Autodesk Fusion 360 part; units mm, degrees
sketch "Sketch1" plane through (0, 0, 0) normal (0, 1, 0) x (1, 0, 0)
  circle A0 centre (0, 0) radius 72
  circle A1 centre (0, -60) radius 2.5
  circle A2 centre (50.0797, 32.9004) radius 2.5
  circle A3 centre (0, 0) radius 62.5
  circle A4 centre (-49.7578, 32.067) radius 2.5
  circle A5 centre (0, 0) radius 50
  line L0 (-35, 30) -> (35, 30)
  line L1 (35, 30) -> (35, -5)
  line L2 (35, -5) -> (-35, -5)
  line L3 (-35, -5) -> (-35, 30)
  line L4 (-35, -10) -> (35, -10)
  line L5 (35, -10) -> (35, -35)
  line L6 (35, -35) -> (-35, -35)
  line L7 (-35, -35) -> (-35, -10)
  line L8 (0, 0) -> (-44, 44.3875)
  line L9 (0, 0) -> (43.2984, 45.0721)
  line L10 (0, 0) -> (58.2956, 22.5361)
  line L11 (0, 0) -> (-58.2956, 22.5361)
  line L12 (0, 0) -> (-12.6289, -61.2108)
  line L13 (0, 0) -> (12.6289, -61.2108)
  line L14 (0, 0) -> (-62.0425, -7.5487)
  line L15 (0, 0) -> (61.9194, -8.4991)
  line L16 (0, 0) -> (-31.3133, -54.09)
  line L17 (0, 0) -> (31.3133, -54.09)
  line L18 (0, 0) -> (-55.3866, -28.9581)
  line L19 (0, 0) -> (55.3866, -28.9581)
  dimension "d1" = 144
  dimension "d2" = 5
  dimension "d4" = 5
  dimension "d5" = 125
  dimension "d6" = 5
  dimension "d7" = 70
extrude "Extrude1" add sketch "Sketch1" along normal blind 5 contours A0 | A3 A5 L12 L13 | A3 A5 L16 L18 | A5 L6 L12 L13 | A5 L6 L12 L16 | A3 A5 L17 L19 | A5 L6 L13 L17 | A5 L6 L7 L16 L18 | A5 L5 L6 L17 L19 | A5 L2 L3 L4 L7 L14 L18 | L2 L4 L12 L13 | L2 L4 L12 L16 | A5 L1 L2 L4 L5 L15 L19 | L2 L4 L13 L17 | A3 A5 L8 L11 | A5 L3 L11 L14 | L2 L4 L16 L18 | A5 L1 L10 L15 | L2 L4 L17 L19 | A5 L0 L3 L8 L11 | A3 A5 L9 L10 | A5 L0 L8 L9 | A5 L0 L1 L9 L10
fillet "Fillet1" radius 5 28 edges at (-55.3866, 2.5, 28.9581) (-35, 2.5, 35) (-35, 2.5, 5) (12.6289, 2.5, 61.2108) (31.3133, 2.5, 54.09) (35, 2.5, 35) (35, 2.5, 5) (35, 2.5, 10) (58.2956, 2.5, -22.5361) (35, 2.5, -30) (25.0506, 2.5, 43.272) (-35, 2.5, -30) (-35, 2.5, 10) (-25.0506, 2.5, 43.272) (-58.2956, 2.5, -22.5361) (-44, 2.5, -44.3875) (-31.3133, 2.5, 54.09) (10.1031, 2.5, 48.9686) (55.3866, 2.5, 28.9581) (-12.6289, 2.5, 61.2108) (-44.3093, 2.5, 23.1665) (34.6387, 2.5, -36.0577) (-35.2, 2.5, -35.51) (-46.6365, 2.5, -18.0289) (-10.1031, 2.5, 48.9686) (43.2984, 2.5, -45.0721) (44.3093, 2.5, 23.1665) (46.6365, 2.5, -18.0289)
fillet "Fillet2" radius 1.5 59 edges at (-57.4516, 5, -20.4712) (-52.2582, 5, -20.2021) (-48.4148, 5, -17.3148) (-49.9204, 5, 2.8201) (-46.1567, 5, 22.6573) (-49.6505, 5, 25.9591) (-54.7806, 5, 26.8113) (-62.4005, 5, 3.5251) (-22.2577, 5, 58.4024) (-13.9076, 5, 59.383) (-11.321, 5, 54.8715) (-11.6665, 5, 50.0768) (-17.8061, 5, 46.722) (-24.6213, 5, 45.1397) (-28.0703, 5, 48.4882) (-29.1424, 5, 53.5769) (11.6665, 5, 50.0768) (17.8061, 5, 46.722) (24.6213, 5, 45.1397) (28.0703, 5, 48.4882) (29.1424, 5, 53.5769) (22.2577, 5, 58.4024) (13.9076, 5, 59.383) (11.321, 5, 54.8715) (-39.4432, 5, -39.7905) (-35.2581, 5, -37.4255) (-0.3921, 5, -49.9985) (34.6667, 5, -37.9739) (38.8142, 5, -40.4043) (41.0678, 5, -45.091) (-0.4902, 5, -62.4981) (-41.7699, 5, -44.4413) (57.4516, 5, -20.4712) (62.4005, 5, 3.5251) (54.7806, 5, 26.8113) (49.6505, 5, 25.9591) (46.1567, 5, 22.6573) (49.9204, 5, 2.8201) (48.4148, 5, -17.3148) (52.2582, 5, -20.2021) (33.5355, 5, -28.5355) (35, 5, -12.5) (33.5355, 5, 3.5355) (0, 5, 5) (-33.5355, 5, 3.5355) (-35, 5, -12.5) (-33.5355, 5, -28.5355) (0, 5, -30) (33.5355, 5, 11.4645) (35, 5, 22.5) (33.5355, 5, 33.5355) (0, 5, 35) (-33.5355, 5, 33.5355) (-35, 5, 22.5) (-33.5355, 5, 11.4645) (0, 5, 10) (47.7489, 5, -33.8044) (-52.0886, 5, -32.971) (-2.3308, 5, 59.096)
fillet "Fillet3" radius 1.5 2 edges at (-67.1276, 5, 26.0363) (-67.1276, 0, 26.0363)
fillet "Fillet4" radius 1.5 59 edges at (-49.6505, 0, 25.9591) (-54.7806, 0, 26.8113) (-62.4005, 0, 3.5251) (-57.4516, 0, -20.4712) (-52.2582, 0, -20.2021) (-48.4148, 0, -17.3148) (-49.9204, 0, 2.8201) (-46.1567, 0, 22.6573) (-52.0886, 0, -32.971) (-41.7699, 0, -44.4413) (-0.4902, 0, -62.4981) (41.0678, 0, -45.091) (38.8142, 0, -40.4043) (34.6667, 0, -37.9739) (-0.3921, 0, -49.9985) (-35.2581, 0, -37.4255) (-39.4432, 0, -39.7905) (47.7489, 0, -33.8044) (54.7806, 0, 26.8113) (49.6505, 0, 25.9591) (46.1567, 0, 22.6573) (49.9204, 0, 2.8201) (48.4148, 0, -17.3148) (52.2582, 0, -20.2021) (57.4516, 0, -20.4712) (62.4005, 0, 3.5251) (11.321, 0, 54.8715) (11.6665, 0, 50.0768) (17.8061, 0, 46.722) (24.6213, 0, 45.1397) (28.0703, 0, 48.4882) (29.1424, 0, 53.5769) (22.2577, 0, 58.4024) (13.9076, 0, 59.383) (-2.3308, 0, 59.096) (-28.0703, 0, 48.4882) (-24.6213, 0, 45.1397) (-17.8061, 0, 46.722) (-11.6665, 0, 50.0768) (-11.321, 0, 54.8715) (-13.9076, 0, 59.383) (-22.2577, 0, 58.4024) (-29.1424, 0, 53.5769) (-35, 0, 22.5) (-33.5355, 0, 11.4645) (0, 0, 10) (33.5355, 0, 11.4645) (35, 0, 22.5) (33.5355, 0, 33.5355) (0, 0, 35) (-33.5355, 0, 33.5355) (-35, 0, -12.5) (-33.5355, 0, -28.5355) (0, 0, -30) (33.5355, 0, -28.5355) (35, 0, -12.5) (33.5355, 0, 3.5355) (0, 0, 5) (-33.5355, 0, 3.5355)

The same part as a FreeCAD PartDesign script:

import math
import FreeCAD as App
import Part
import Sketcher

V = App.Vector
Q = App.Units.Quantity


def edges_at(feature, points):
    """Names of the edges that pass closest to the given points."""
    edges = feature.Shape.Edges
    near = lambda p: min(range(len(edges)), key=lambda i: edges[i].distToShape(Part.Vertex(*p))[0])
    return sorted({f"Edge{near(p) + 1}" for p in points})


def add_polygon(sketch, points):
    """Adds a closed chain of lines whose ends are joined by coincident constraints."""
    first, n = sketch.GeometryCount, len(points)
    for a, b in zip(points, points[1:] + points[:1]):
        sketch.addGeometry(Part.LineSegment(App.Vector(*a, 0), App.Vector(*b, 0)), False)
    for i in range(n):
        sketch.addConstraint(Sketcher.Constraint("Coincident", first + i, 2, first + (i + 1) % n, 1))

doc = App.newDocument("Part")
params = doc.addObject("Spreadsheet::Sheet", "Params")
for row, (alias, value) in enumerate([
    ("sketch1_diameter", "144 mm"),
    ("sketch1_diameter2", "5 mm"),
    ("sketch1_radius", "62.5 mm"),
    ("sketch1_width", "70 mm"),
    ("sketch1_radius2", "50 mm"),
    ("pad1_length", "5 mm"),
    ("fillet_radius", "5 mm"),
    ("fillet2_radius", "1.5 mm"),
    ("fillet3_radius", "1.5 mm"),
    ("fillet4_radius", "1.5 mm"),
], start=1):
    params.set(f"A{row}", alias)
    params.set(f"B{row}", "=" + value)
    params.setAlias(f"B{row}", alias)

body = doc.addObject("PartDesign::Body", "Body")

# Sketch on XZ plane
sketch1 = doc.addObject("Sketcher::SketchObject", "Sketch")
body.addObject(sketch1)
sketch1.AttachmentSupport = (doc.XZ_Plane, [""])
sketch1.MapMode = "FlatFace"
sketch1.addGeometry(Part.Circle(V(0, 0, 0), V(0, 0, 1), 72), False)  # 0
sketch1.addGeometry(Part.ArcOfCircle(Part.Circle(V(0, 0, 0), V(0, 0, 1), 62.5), math.radians(59.93), math.radians(78.34)), False)  # 1
sketch1.addGeometry(Part.LineSegment(V(12.6, 61.2, 0), V(10.1, 49, 0)), False)  # 2
sketch1.addGeometry(Part.ArcOfCircle(Part.Circle(V(0, 0, 0), V(0, 0, 1), 50), math.radians(59.93), math.radians(78.34)), False)  # 3
sketch1.addGeometry(Part.LineSegment(V(25.1, 43.3, 0), V(31.3, 54.1, 0)), False)  # 4
sketch1.addGeometry(Part.LineSegment(V(55.4, 29, 0), V(44.3, 23.2, 0)), False)  # 5
sketch1.addGeometry(Part.ArcOfCircle(Part.Circle(V(0, 0, 0), V(0, 0, 1), 50), math.radians(-21), math.radians(28)), False)  # 6
sketch1.addGeometry(Part.LineSegment(V(46.6, -18, 0), V(58.3, -22.5, 0)), False)  # 7
sketch1.addGeometry(Part.ArcOfCircle(Part.Circle(V(0, 0, 0), V(0, 0, 1), 62.5), math.radians(-21), math.radians(28)), False)  # 8
sketch1.addGeometry(Part.ArcOfCircle(Part.Circle(V(0, 0, 0), V(0, 0, 1), 62.5), math.radians(-135), math.radians(-46)), False)  # 9
sketch1.addGeometry(Part.LineSegment(V(43.3, -45.1, 0), V(34.6, -36.1, 0)), False)  # 10
sketch1.addGeometry(Part.ArcOfCircle(Part.Circle(V(0, 0, 0), V(0, 0, 1), 50), math.radians(-135), math.radians(-46)), False)  # 11
sketch1.addGeometry(Part.LineSegment(V(-35.2, -35.5, 0), V(-44, -44.4, 0)), False)  # 12
sketch1.addGeometry(Part.LineSegment(V(-58.3, -22.5, 0), V(-46.6, -18, 0)), False)  # 13
sketch1.addGeometry(Part.ArcOfCircle(Part.Circle(V(0, 0, 0), V(0, 0, 1), 50), math.radians(152), math.radians(201)), False)  # 14
sketch1.addGeometry(Part.LineSegment(V(-44.3, 23.2, 0), V(-55.4, 29, 0)), False)  # 15
sketch1.addGeometry(Part.ArcOfCircle(Part.Circle(V(0, 0, 0), V(0, 0, 1), 62.5), math.radians(152), math.radians(201)), False)  # 16
sketch1.addGeometry(Part.ArcOfCircle(Part.Circle(V(0, 0, 0), V(0, 0, 1), 62.5), math.radians(101.66), math.radians(120.07)), False)  # 17
sketch1.addGeometry(Part.LineSegment(V(-31.3, 54.1, 0), V(-25.1, 43.3, 0)), False)  # 18
sketch1.addGeometry(Part.ArcOfCircle(Part.Circle(V(0, 0, 0), V(0, 0, 1), 50), math.radians(101.66), math.radians(120.07)), False)  # 19
sketch1.addGeometry(Part.LineSegment(V(-10.1, 49, 0), V(-12.6, 61.2, 0)), False)  # 20
sketch1.addGeometry(Part.Circle(V(0, 60, 0), V(0, 0, 1), 2.5), False)  # 21
sketch1.addGeometry(Part.Circle(V(50.1, -32.9, 0), V(0, 0, 1), 2.5), False)  # 22
sketch1.addGeometry(Part.Circle(V(-49.8, -32.1, 0), V(0, 0, 1), 2.5), False)  # 23
add_polygon(sketch1, [(-35, 35), (-35, 10), (35, 10), (35, 35)])  # lines 24-27
add_polygon(sketch1, [(35, -30), (35, 5), (-35, 5), (-35, -30)])  # lines 28-31
sketch1.addConstraint([
    Sketcher.Constraint("Coincident", 1, 2, 2, 1),
    Sketcher.Constraint("Coincident", 2, 2, 3, 2),
    Sketcher.Constraint("Coincident", 3, 1, 4, 1),
    Sketcher.Constraint("Coincident", 4, 2, 1, 1),
    Sketcher.Constraint("Coincident", 5, 2, 6, 2),
    Sketcher.Constraint("Coincident", 6, 1, 7, 1),
    Sketcher.Constraint("Coincident", 7, 2, 8, 1),
    Sketcher.Constraint("Coincident", 8, 2, 5, 1),
    Sketcher.Constraint("Coincident", 9, 2, 10, 1),
    Sketcher.Constraint("Coincident", 10, 2, 11, 2),
    Sketcher.Constraint("Coincident", 11, 1, 12, 1),
    Sketcher.Constraint("Coincident", 12, 2, 9, 1),
    Sketcher.Constraint("Coincident", 13, 2, 14, 2),
    Sketcher.Constraint("Coincident", 14, 1, 15, 1),
    Sketcher.Constraint("Coincident", 15, 2, 16, 1),
    Sketcher.Constraint("Coincident", 16, 2, 13, 1),
    Sketcher.Constraint("Coincident", 17, 2, 18, 1),
    Sketcher.Constraint("Coincident", 18, 2, 19, 2),
    Sketcher.Constraint("Coincident", 19, 1, 20, 1),
    Sketcher.Constraint("Coincident", 20, 2, 17, 1),
    Sketcher.Constraint("Vertical", 24),
    Sketcher.Constraint("Horizontal", 25),
    Sketcher.Constraint("Vertical", 26),
    Sketcher.Constraint("Horizontal", 27),
    Sketcher.Constraint("Vertical", 28),
    Sketcher.Constraint("Horizontal", 29),
    Sketcher.Constraint("Vertical", 30),
    Sketcher.Constraint("Horizontal", 31),
    Sketcher.Constraint("Coincident", 0, 3, -1, 1),
    Sketcher.Constraint("Coincident", 1, 3, -1, 1),
    Sketcher.Constraint("Coincident", 3, 3, -1, 1),
    Sketcher.Constraint("Coincident", 6, 3, -1, 1),
    Sketcher.Constraint("Coincident", 8, 3, -1, 1),
    Sketcher.Constraint("Coincident", 9, 3, -1, 1),
    Sketcher.Constraint("Coincident", 11, 3, -1, 1),
    Sketcher.Constraint("Coincident", 14, 3, -1, 1),
    Sketcher.Constraint("Coincident", 16, 3, -1, 1),
    Sketcher.Constraint("Coincident", 17, 3, -1, 1),
    Sketcher.Constraint("Coincident", 19, 3, -1, 1),
    Sketcher.Constraint("Equal", 3, 6),
    Sketcher.Constraint("Equal", 1, 8),
    Sketcher.Constraint("Equal", 8, 9),
    Sketcher.Constraint("Equal", 6, 11),
    Sketcher.Constraint("Equal", 11, 14),
    Sketcher.Constraint("Equal", 9, 16),
    Sketcher.Constraint("Equal", 16, 17),
    Sketcher.Constraint("Equal", 14, 19),
    Sketcher.Constraint("Equal", 21, 22),
    Sketcher.Constraint("Equal", 22, 23),
    Sketcher.Constraint("PointOnObject", 21, 3, -2),
    Sketcher.Constraint("Horizontal", 6, 1, 13, 2),
    Sketcher.Constraint("Horizontal", 5, 2, 14, 1),
    Sketcher.Constraint("Horizontal", 8, 2, 15, 2),
    Sketcher.Constraint("Horizontal", 7, 2, 16, 2),
    Sketcher.Constraint("Horizontal", 4, 2, 17, 2),
    Sketcher.Constraint("Horizontal", 3, 1, 18, 2),
    Sketcher.Constraint("Horizontal", 2, 2, 19, 1),
    Sketcher.Constraint("Horizontal", 1, 2, 20, 2),
    Sketcher.Constraint("Vertical", 26, 2, 28, 2),
    Sketcher.Constraint("Vertical", 27, 2, 29, 2),
    Sketcher.Constraint("Diameter", 0, 144.0),
    Sketcher.Constraint("Diameter", 21, 5.0),
    Sketcher.Constraint("Radius", 1, 62.5),
    Sketcher.Constraint("DistanceX", 25, 1, 25, 2, 70.0),
    Sketcher.Constraint("DistanceY", -1, 1, 28, 2, 5.0),
    Sketcher.Constraint("Radius", 3, 50.0),
    Sketcher.Constraint("DistanceY", 28, 2, 25, 2, 5.0),
    Sketcher.Constraint("DistanceY", 24, 2, 24, 1, 25.0),
    Sketcher.Constraint("DistanceY", 28, 1, 28, 2, 35.0),
    Sketcher.Constraint("DistanceY", -1, 1, 21, 3, 60.0),
    Sketcher.Constraint("DistanceX", 12, 2, -1, 1, 44.0),
    Sketcher.Constraint("DistanceX", 24, 2, -1, 1, 35.0),
    Sketcher.Constraint("DistanceX", 11, 1, -1, 1, 35.2),
    Sketcher.Constraint("Angle", 10, Q("133.8502 deg")),
    Sketcher.Constraint("DistanceY", -1, 1, 4, 2, 54.09),
    Sketcher.Constraint("DistanceY", 23, 3, -1, 1, 32.067),
    Sketcher.Constraint("DistanceX", -1, 1, 1, 2, 12.629),
    Sketcher.Constraint("DistanceX", -1, 1, 2, 2, 10.103),
    Sketcher.Constraint("DistanceY", -1, 1, 3, 1, 43.272),
    Sketcher.Constraint("DistanceY", 7, 2, -1, 1, 22.536),
    Sketcher.Constraint("DistanceY", -1, 1, 8, 2, 28.958),
    Sketcher.Constraint("DistanceX", 4, 2, 5, 2, 12.996),
    Sketcher.Constraint("DistanceX", 22, 3, 7, 2, 8.216),
    Sketcher.Constraint("DistanceY", 6, 1, 8, 2, 46.987),
    Sketcher.Constraint("DistanceY", 9, 2, 7, 2, 22.536),
    Sketcher.Constraint("DistanceY", 22, 3, -1, 1, 32.9004),
    Sketcher.Constraint("DistanceX", 23, 3, -1, 1, 49.7578),
])
sketch1.setExpression("Constraints[68]", "Params.sketch1_diameter")
sketch1.setExpression("Constraints[69]", "Params.sketch1_diameter2")
sketch1.setExpression("Constraints[70]", "Params.sketch1_radius")
sketch1.setExpression("Constraints[71]", "Params.sketch1_width")
sketch1.setExpression("Constraints[73]", "Params.sketch1_radius2")
pad1 = doc.addObject("PartDesign::Pad", "Pad")
body.addObject(pad1)
pad1.Profile = sketch1
pad1.setExpression("Length", "Params.pad1_length")
pad1.Reversed = True
doc.recompute()

fillet = doc.addObject("PartDesign::Fillet", "Fillet")
body.addObject(fillet)
fillet.Base = (pad1, edges_at(pad1, [
    (-55.387, 2.5, 28.958),
    (-35, 2.5, 35),
    (-35, 2.5, 5),
    (12.629, 2.5, 61.211),
    (31.313, 2.5, 54.09),
    (35, 2.5, 35),
    (35, 2.5, 5),
    (35, 2.5, 10),
    (58.296, 2.5, -22.536),
    (35, 2.5, -30),
    (25.051, 2.5, 43.272),
    (-35, 2.5, -30),
    (-35, 2.5, 10),
    (-25.051, 2.5, 43.272),
    (-58.296, 2.5, -22.536),
    (-44, 2.5, -44.388),
    (-31.313, 2.5, 54.09),
    (10.103, 2.5, 48.969),
    (55.387, 2.5, 28.958),
    (-12.629, 2.5, 61.211),
    (-44.309, 2.5, 23.166),
    (34.639, 2.5, -36.058),
    (-35.2, 2.5, -35.51),
    (-46.636, 2.5, -18.029),
    (-10.103, 2.5, 48.969),
    (43.298, 2.5, -45.072),
    (44.309, 2.5, 23.166),
    (46.636, 2.5, -18.029),
]))
fillet.setExpression("Radius", "Params.fillet_radius")
doc.recompute()

fillet2 = doc.addObject("PartDesign::Fillet", "Fillet001")
body.addObject(fillet2)
fillet2.Base = (fillet, edges_at(fillet, [
    (-57.452, 5, -20.471),
    (-52.258, 5, -20.202),
    (-48.415, 5, -17.315),
    (-49.92, 5, 2.82),
    (-46.157, 5, 22.657),
    (-49.651, 5, 25.959),
    (-54.781, 5, 26.811),
    (-62.401, 5, 3.525),
    (-22.258, 5, 58.402),
    (-13.908, 5, 59.383),
    (-11.321, 5, 54.871),
    (-11.666, 5, 50.077),
    (-17.806, 5, 46.722),
    (-24.621, 5, 45.14),
    (-28.07, 5, 48.488),
    (-29.142, 5, 53.577),
    (11.666, 5, 50.077),
    (17.806, 5, 46.722),
    (24.621, 5, 45.14),
    (28.07, 5, 48.488),
    (29.142, 5, 53.577),
    (22.258, 5, 58.402),
    (13.908, 5, 59.383),
    (11.321, 5, 54.871),
    (-39.443, 5, -39.791),
    (-35.258, 5, -37.425),
    (-0.392, 5, -49.998),
    (34.667, 5, -37.974),
    (38.814, 5, -40.404),
    (41.068, 5, -45.091),
    (-0.49, 5, -62.498),
    (-41.77, 5, -44.441),
    (57.452, 5, -20.471),
    (62.401, 5, 3.525),
    (54.781, 5, 26.811),
    (49.651, 5, 25.959),
    (46.157, 5, 22.657),
    (49.92, 5, 2.82),
    (48.415, 5, -17.315),
    (52.258, 5, -20.202),
    (33.535, 5, -28.535),
    (35, 5, -12.5),
    (33.535, 5, 3.535),
    (0, 5, 5),
    (-33.535, 5, 3.535),
    (-35, 5, -12.5),
    (-33.535, 5, -28.535),
    (0, 5, -30),
    (33.535, 5, 11.464),
    (35, 5, 22.5),
    (33.535, 5, 33.535),
    (0, 5, 35),
    (-33.535, 5, 33.535),
    (-35, 5, 22.5),
    (-33.535, 5, 11.464),
    (0, 5, 10),
    (47.749, 5, -33.804),
    (-52.089, 5, -32.971),
    (-2.331, 5, 59.096),
]))
fillet2.setExpression("Radius", "Params.fillet2_radius")
doc.recompute()

fillet3 = doc.addObject("PartDesign::Fillet", "Fillet002")
body.addObject(fillet3)
fillet3.Base = (fillet2, edges_at(fillet2, [(-67.128, 5, 26.036), (-67.128, 0, 26.036)]))
fillet3.setExpression("Radius", "Params.fillet3_radius")
doc.recompute()

fillet4 = doc.addObject("PartDesign::Fillet", "Fillet003")
body.addObject(fillet4)
fillet4.Base = (fillet3, edges_at(fillet3, [
    (-49.651, 0, 25.959),
    (-54.781, 0, 26.811),
    (-62.401, 0, 3.525),
    (-57.452, 0, -20.471),
    (-52.258, 0, -20.202),
    (-48.415, 0, -17.315),
    (-49.92, 0, 2.82),
    (-46.157, 0, 22.657),
    (-52.089, 0, -32.971),
    (-41.77, 0, -44.441),
    (-0.49, 0, -62.498),
    (41.068, 0, -45.091),
    (38.814, 0, -40.404),
    (34.667, 0, -37.974),
    (-0.392, 0, -49.998),
    (-35.258, 0, -37.425),
    (-39.443, 0, -39.791),
    (47.749, 0, -33.804),
    (54.781, 0, 26.811),
    (49.651, 0, 25.959),
    (46.157, 0, 22.657),
    (49.92, 0, 2.82),
    (48.415, 0, -17.315),
    (52.258, 0, -20.202),
    (57.452, 0, -20.471),
    (62.401, 0, 3.525),
    (11.321, 0, 54.871),
    (11.666, 0, 50.077),
    (17.806, 0, 46.722),
    (24.621, 0, 45.14),
    (28.07, 0, 48.488),
    (29.142, 0, 53.577),
    (22.258, 0, 58.402),
    (13.908, 0, 59.383),
    (-2.331, 0, 59.096),
    (-28.07, 0, 48.488),
    (-24.621, 0, 45.14),
    (-17.806, 0, 46.722),
    (-11.666, 0, 50.077),
    (-11.321, 0, 54.871),
    (-13.908, 0, 59.383),
    (-22.258, 0, 58.402),
    (-29.142, 0, 53.577),
    (-35, 0, 22.5),
    (-33.535, 0, 11.464),
    (0, 0, 10),
    (33.535, 0, 11.464),
    (35, 0, 22.5),
    (33.535, 0, 33.535),
    (0, 0, 35),
    (-33.535, 0, 33.535),
    (-35, 0, -12.5),
    (-33.535, 0, -28.535),
    (0, 0, -30),
    (33.535, 0, -28.535),
    (35, 0, -12.5),
    (33.535, 0, 3.535),
    (0, 0, 5),
    (-33.535, 0, 3.535),
]))
fillet4.setExpression("Radius", "Params.fillet4_radius")

doc.recompute()
